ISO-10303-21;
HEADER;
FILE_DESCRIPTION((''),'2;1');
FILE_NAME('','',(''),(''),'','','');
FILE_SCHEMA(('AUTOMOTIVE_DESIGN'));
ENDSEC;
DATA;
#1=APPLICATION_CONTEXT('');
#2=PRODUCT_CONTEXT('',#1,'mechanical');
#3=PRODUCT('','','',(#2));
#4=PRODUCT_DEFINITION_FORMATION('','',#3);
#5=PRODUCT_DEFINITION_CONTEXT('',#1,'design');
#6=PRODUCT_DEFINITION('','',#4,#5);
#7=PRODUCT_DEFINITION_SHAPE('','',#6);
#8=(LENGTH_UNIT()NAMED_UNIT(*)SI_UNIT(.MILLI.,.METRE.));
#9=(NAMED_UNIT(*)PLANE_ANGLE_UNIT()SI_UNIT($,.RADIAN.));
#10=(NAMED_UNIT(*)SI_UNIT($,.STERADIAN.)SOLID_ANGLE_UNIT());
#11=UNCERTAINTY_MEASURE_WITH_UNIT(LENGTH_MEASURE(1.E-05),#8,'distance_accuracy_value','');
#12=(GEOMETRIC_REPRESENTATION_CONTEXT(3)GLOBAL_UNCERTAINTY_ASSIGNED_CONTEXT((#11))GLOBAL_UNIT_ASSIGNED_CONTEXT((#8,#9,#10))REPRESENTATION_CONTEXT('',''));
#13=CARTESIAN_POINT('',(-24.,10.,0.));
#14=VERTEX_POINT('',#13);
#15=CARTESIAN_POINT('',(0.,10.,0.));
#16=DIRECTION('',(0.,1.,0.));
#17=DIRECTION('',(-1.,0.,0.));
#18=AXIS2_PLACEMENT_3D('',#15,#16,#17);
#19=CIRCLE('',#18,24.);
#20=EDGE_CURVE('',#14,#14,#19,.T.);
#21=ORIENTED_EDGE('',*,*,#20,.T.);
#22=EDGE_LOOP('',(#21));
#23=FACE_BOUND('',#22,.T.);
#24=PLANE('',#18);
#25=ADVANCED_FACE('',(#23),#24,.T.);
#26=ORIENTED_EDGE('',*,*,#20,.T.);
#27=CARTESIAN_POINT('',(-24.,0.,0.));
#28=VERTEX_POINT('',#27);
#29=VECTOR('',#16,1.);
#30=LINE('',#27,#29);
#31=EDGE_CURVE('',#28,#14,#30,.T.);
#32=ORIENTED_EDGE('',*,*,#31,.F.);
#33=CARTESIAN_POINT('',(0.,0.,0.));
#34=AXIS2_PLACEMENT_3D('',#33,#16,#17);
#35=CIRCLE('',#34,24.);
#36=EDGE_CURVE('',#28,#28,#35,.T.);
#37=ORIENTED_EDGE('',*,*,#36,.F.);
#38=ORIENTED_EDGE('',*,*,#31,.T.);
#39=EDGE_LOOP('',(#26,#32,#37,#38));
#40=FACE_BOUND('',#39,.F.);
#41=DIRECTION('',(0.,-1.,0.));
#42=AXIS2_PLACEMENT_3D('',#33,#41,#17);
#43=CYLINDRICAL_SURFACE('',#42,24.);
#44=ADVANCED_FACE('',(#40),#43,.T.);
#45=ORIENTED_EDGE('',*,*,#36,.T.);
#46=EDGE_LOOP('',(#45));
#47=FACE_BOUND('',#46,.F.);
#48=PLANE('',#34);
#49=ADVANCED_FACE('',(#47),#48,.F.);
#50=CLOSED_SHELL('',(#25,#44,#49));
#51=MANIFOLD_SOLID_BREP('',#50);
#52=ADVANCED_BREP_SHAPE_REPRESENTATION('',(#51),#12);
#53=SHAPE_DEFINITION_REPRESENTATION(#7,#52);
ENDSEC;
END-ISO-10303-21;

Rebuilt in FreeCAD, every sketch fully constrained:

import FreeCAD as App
import Part
import Sketcher
from FreeCAD import Vector
Q = App.Units.Quantity

doc = App.newDocument("Part")
params = doc.addObject("Spreadsheet::Sheet", "Params")
for row, (alias, value) in enumerate([
    ("sketch1_diameter", "48 mm"),
    ("pad1_length", "10 mm"),
], start=1):
    params.set(f"A{row}", alias)
    params.set(f"B{row}", "=" + value)
    params.setAlias(f"B{row}", alias)

body = doc.addObject("PartDesign::Body", "Body")

# Sketch on XZ plane
sketch1 = body.newObject("Sketcher::SketchObject", "Sketch")
sketch1.AttachmentSupport = (doc.getObject("XZ_Plane"), [""])
sketch1.MapMode = "FlatFace"
sketch1.addGeometry(Part.Circle(Vector(0, 0, 0), Vector(0, 0, 1), 24), False)
sketch1.addConstraint(Sketcher.Constraint("Coincident", 0, 3, -1, 1))
sketch1.addConstraint(Sketcher.Constraint("Diameter", 0, Q("48 mm")))
sketch1.setExpression("Constraints[1]", "Params.sketch1_diameter")
pad1 = body.newObject("PartDesign::Pad", "Pad")
pad1.Profile = sketch1
pad1.setExpression("Length", "Params.pad1_length")
pad1.Reversed = True

doc.recompute()
